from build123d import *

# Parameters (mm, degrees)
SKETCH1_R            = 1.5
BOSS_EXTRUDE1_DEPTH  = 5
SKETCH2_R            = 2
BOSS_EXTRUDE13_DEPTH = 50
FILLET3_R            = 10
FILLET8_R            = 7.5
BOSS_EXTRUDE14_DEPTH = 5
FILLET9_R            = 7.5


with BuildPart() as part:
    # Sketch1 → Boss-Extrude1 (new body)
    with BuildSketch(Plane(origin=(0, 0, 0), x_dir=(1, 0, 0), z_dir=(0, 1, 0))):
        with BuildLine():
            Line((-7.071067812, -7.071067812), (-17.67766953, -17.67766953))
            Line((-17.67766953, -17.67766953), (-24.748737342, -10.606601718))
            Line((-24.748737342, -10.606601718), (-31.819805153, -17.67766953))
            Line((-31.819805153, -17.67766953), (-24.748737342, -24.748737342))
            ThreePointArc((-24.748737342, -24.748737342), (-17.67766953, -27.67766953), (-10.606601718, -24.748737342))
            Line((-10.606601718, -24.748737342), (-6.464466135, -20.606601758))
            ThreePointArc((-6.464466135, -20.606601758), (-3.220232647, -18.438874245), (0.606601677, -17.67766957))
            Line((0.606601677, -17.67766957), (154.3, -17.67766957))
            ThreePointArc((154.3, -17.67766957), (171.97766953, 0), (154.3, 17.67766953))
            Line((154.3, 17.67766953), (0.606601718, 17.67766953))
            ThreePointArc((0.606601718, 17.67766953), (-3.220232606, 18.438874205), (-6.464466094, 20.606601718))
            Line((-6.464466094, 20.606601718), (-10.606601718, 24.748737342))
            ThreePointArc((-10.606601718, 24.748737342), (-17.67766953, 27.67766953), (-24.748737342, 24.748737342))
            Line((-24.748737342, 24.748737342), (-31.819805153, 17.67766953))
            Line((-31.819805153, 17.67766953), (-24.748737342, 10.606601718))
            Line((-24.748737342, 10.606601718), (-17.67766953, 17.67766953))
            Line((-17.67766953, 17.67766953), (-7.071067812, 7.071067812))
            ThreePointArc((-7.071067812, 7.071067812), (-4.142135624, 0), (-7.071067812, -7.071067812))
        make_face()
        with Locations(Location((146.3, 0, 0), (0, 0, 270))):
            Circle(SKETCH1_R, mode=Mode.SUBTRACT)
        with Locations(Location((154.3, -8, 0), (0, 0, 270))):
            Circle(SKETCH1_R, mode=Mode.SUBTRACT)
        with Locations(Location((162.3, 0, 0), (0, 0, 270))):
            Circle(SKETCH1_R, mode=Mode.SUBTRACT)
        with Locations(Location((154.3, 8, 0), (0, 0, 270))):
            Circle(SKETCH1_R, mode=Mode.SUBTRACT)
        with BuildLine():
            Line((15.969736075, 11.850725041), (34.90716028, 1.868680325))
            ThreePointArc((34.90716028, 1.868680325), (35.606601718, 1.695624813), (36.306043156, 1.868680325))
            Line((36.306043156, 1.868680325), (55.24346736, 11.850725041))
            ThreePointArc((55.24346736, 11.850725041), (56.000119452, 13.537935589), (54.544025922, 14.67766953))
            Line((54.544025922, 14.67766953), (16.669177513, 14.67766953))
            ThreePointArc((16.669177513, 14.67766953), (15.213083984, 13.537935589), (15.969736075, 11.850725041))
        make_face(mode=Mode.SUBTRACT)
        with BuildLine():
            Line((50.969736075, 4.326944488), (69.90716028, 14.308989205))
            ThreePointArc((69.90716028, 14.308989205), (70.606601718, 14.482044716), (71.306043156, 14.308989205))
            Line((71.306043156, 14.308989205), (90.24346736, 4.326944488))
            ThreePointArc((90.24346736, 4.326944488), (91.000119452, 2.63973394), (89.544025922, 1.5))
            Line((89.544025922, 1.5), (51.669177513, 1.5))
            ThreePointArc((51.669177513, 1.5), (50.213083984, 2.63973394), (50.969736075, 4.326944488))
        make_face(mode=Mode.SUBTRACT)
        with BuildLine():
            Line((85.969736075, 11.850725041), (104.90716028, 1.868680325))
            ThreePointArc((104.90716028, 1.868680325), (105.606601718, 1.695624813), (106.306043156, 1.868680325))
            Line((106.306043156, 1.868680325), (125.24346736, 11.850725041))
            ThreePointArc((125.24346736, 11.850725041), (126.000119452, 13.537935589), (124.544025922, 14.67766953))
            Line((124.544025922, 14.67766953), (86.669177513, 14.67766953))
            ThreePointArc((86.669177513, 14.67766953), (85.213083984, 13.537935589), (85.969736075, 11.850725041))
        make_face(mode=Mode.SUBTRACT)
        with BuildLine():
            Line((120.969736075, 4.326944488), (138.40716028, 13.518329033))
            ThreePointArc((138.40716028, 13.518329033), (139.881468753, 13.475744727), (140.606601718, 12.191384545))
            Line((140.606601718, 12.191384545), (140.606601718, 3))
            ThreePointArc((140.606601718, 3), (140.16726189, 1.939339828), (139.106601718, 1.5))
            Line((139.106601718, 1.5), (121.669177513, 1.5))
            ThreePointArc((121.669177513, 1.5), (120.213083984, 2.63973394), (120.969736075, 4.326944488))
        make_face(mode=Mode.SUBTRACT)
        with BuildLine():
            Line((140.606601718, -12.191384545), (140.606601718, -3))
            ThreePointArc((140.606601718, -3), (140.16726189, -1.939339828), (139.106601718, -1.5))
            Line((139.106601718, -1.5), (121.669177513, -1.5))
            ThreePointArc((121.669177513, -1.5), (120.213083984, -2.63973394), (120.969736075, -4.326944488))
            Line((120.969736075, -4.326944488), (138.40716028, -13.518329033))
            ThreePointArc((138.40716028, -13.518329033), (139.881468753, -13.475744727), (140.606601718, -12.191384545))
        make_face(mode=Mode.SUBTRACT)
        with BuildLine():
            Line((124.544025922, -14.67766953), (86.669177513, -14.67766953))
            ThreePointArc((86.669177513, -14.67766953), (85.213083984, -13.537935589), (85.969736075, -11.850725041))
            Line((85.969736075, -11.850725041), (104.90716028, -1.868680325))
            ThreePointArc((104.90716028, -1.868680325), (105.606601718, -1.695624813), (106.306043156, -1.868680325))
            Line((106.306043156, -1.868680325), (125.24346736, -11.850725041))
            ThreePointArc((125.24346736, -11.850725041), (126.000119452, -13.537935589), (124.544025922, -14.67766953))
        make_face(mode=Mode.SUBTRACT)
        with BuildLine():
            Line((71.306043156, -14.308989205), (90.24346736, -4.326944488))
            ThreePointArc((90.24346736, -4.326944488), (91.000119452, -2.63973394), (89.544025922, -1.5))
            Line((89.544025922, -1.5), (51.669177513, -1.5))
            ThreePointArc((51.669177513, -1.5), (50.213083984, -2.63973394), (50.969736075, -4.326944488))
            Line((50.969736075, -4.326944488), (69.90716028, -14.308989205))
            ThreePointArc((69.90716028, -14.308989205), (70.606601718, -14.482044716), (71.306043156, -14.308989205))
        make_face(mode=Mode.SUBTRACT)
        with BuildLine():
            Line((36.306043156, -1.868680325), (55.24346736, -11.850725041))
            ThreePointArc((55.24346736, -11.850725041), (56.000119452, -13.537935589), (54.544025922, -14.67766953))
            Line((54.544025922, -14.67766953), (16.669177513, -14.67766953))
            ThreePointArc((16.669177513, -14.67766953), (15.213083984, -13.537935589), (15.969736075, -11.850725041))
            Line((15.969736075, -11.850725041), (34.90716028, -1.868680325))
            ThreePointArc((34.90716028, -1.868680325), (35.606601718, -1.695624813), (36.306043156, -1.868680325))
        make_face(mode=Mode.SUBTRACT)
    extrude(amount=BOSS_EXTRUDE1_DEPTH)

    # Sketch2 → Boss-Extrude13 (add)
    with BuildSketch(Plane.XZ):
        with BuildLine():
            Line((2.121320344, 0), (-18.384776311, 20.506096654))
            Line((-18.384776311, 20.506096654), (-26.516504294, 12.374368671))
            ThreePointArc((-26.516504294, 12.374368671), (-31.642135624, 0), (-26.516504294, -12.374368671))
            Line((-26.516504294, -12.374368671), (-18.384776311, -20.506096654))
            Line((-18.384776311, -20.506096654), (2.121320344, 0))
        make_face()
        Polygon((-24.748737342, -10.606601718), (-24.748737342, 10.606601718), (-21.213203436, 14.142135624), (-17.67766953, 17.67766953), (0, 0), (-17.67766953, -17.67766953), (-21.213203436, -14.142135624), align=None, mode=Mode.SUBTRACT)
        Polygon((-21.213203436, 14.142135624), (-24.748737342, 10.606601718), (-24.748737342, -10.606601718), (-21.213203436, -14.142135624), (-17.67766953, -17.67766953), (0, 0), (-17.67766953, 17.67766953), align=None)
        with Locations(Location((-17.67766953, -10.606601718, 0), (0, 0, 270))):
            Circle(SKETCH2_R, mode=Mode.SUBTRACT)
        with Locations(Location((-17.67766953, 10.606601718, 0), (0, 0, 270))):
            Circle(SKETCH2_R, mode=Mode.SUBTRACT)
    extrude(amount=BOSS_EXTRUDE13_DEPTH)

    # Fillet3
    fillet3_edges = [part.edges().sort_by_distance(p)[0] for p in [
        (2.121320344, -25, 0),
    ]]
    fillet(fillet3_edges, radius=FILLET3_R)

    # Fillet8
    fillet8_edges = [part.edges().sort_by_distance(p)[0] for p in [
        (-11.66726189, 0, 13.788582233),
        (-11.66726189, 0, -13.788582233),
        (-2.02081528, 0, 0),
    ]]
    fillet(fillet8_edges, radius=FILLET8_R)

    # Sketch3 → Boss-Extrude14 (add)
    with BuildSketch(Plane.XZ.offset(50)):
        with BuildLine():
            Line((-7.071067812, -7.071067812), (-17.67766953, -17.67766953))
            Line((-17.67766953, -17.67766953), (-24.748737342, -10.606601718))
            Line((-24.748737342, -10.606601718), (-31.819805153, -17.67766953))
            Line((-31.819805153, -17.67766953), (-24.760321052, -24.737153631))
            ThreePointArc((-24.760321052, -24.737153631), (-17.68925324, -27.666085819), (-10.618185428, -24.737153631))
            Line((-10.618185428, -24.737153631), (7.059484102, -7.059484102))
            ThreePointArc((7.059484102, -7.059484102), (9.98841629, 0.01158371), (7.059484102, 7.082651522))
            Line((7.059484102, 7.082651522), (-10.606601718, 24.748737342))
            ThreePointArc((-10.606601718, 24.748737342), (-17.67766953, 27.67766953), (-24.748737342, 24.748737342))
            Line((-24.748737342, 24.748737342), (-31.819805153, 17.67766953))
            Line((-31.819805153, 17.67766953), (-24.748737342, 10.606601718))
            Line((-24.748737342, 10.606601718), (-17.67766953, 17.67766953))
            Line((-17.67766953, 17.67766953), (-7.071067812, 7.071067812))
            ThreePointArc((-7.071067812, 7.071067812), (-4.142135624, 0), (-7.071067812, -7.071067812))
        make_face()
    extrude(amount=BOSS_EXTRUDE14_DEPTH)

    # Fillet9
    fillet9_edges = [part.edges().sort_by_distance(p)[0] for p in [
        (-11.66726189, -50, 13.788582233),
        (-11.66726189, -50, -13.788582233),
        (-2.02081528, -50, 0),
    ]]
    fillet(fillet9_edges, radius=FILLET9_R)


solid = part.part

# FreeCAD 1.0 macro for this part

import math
import FreeCAD as App
import Part
import Sketcher


def edges_at(feature, points):
    """Names of the edges that pass closest to the given points."""
    edges = feature.Shape.Edges
    near = lambda p: min(range(len(edges)), key=lambda i: edges[i].distToShape(Part.Vertex(*p))[0])
    return sorted({f"Edge{near(p) + 1}" for p in points})

doc = App.newDocument("Part")
body = doc.addObject("PartDesign::Body", "Body")

sketch1 = body.newObject("Sketcher::SketchObject", "Sketch")
sketch1.AttachmentSupport = (doc.getObject("XZ_Plane"), [""])
sketch1.MapMode = "FlatFace"
sketch1.addGeometry(Part.LineSegment(App.Vector(-7.1, 7.1, 0), App.Vector(-17.7, 17.7, 0)), False)
sketch1.addGeometry(Part.LineSegment(App.Vector(-17.7, 17.7, 0), App.Vector(-24.7, 10.6, 0)), False)
sketch1.addGeometry(Part.LineSegment(App.Vector(-24.7, 10.6, 0), App.Vector(-31.8, 17.7, 0)), False)
sketch1.addGeometry(Part.LineSegment(App.Vector(-31.8, 17.7, 0), App.Vector(-24.7, 24.7, 0)), False)
sketch1.addGeometry(Part.ArcOfCircle(Part.Circle(App.Vector(-17.7, 17.7, 0), App.Vector(0, 0, 1), 10), math.radians(45), math.radians(135)), False)
sketch1.addGeometry(Part.LineSegment(App.Vector(-10.6, 24.7, 0), App.Vector(-6.5, 20.6, 0)), False)
sketch1.addGeometry(Part.ArcOfCircle(Part.Circle(App.Vector(0.6, 27.7, 0), App.Vector(0, 0, 1), 10), math.radians(-135), math.radians(-90)), False)
sketch1.addGeometry(Part.LineSegment(App.Vector(0.6, 17.7, 0), App.Vector(154.3, 17.7, 0)), False)
sketch1.addGeometry(Part.ArcOfCircle(Part.Circle(App.Vector(154.3, 0, 0), App.Vector(0, 0, 1), 17.7), math.radians(-90), math.radians(90)), False)
sketch1.addGeometry(Part.LineSegment(App.Vector(154.3, -17.7, 0), App.Vector(0.6, -17.7, 0)), False)
sketch1.addGeometry(Part.ArcOfCircle(Part.Circle(App.Vector(0.6, -27.7, 0), App.Vector(0, 0, 1), 10), math.radians(90), math.radians(135)), False)
sketch1.addGeometry(Part.LineSegment(App.Vector(-6.5, -20.6, 0), App.Vector(-10.6, -24.7, 0)), False)
sketch1.addGeometry(Part.ArcOfCircle(Part.Circle(App.Vector(-17.7, -17.7, 0), App.Vector(0, 0, 1), 10), math.radians(-135), math.radians(-45)), False)
sketch1.addGeometry(Part.LineSegment(App.Vector(-24.7, -24.7, 0), App.Vector(-31.8, -17.7, 0)), False)
sketch1.addGeometry(Part.LineSegment(App.Vector(-31.8, -17.7, 0), App.Vector(-24.7, -10.6, 0)), False)
sketch1.addGeometry(Part.LineSegment(App.Vector(-24.7, -10.6, 0), App.Vector(-17.7, -17.7, 0)), False)
sketch1.addGeometry(Part.LineSegment(App.Vector(-17.7, -17.7, 0), App.Vector(-7.1, -7.1, 0)), False)
sketch1.addGeometry(Part.ArcOfCircle(Part.Circle(App.Vector(-14.1, 0, 0), App.Vector(0, 0, 1), 10), math.radians(-45), math.radians(45)), False)
sketch1.addGeometry(Part.ArcOfCircle(Part.Circle(App.Vector(35.6, 3.2, 0), App.Vector(0, 0, 1), 1.5), math.radians(-118), math.radians(-62)), False)
sketch1.addGeometry(Part.LineSegment(App.Vector(36.3, 1.9, 0), App.Vector(55.2, 11.9, 0)), False)
sketch1.addGeometry(Part.ArcOfCircle(Part.Circle(App.Vector(54.5, 13.2, 0), App.Vector(0, 0, 1), 1.5), math.radians(-62), math.radians(90)), False)
sketch1.addGeometry(Part.LineSegment(App.Vector(54.5, 14.7, 0), App.Vector(16.7, 14.7, 0)), False)
sketch1.addGeometry(Part.ArcOfCircle(Part.Circle(App.Vector(16.7, 13.2, 0), App.Vector(0, 0, 1), 1.5), math.radians(90), math.radians(242)), False)
sketch1.addGeometry(Part.LineSegment(App.Vector(16, 11.9, 0), App.Vector(34.9, 1.9, 0)), False)
sketch1.addGeometry(Part.LineSegment(App.Vector(90.2, 4.3, 0), App.Vector(71.3, 14.3, 0)), False)
sketch1.addGeometry(Part.ArcOfCircle(Part.Circle(App.Vector(70.6, 13, 0), App.Vector(0, 0, 1), 1.5), math.radians(62), math.radians(118)), False)
sketch1.addGeometry(Part.LineSegment(App.Vector(69.9, 14.3, 0), App.Vector(51, 4.3, 0)), False)
sketch1.addGeometry(Part.ArcOfCircle(Part.Circle(App.Vector(51.7, 3, 0), App.Vector(0, 0, 1), 1.5), math.radians(118), math.radians(270)), False)
sketch1.addGeometry(Part.LineSegment(App.Vector(51.7, 1.5, 0), App.Vector(89.5, 1.5, 0)), False)
sketch1.addGeometry(Part.ArcOfCircle(Part.Circle(App.Vector(89.5, 3, 0), App.Vector(0, 0, 1), 1.5), math.radians(-90), math.radians(62)), False)
sketch1.addGeometry(Part.ArcOfCircle(Part.Circle(App.Vector(124.5, 13.2, 0), App.Vector(0, 0, 1), 1.5), math.radians(-62), math.radians(90)), False)
sketch1.addGeometry(Part.LineSegment(App.Vector(124.5, 14.7, 0), App.Vector(86.7, 14.7, 0)), False)
sketch1.addGeometry(Part.ArcOfCircle(Part.Circle(App.Vector(86.7, 13.2, 0), App.Vector(0, 0, 1), 1.5), math.radians(90), math.radians(242)), False)
sketch1.addGeometry(Part.LineSegment(App.Vector(86, 11.9, 0), App.Vector(104.9, 1.9, 0)), False)
sketch1.addGeometry(Part.ArcOfCircle(Part.Circle(App.Vector(105.6, 3.2, 0), App.Vector(0, 0, 1), 1.5), math.radians(-118), math.radians(-62)), False)
sketch1.addGeometry(Part.LineSegment(App.Vector(106.3, 1.9, 0), App.Vector(125.2, 11.9, 0)), False)
sketch1.addGeometry(Part.LineSegment(App.Vector(140.6, 3, 0), App.Vector(140.6, 12.2, 0)), False)
sketch1.addGeometry(Part.ArcOfCircle(Part.Circle(App.Vector(139.1, 12.2, 0), App.Vector(0, 0, 1), 1.5), math.radians(0), math.radians(118)), False)
sketch1.addGeometry(Part.LineSegment(App.Vector(138.4, 13.5, 0), App.Vector(121, 4.3, 0)), False)
sketch1.addGeometry(Part.ArcOfCircle(Part.Circle(App.Vector(121.7, 3, 0), App.Vector(0, 0, 1), 1.5), math.radians(118), math.radians(270)), False)
sketch1.addGeometry(Part.LineSegment(App.Vector(121.7, 1.5, 0), App.Vector(139.1, 1.5, 0)), False)
sketch1.addGeometry(Part.ArcOfCircle(Part.Circle(App.Vector(139.1, 3, 0), App.Vector(0, 0, 1), 1.5), math.radians(-90), math.radians(0)), False)
sketch1.addGeometry(Part.Circle(App.Vector(154.3, 8, 0), App.Vector(0, 0, 1), 1.5), False)
sketch1.addGeometry(Part.Circle(App.Vector(146.3, 0, 0), App.Vector(0, 0, 1), 1.5), False)
sketch1.addGeometry(Part.Circle(App.Vector(162.3, 0, 0), App.Vector(0, 0, 1), 1.5), False)
sketch1.addGeometry(Part.LineSegment(App.Vector(34.9, -1.9, 0), App.Vector(16, -11.9, 0)), False)
sketch1.addGeometry(Part.ArcOfCircle(Part.Circle(App.Vector(16.7, -13.2, 0), App.Vector(0, 0, 1), 1.5), math.radians(118), math.radians(270)), False)
sketch1.addGeometry(Part.LineSegment(App.Vector(16.7, -14.7, 0), App.Vector(54.5, -14.7, 0)), False)
sketch1.addGeometry(Part.ArcOfCircle(Part.Circle(App.Vector(54.5, -13.2, 0), App.Vector(0, 0, 1), 1.5), math.radians(-90), math.radians(62)), False)
sketch1.addGeometry(Part.LineSegment(App.Vector(55.2, -11.9, 0), App.Vector(36.3, -1.9, 0)), False)
sketch1.addGeometry(Part.ArcOfCircle(Part.Circle(App.Vector(35.6, -3.2, 0), App.Vector(0, 0, 1), 1.5), math.radians(62), math.radians(118)), False)
sketch1.addGeometry(Part.ArcOfCircle(Part.Circle(App.Vector(51.7, -3, 0), App.Vector(0, 0, 1), 1.5), math.radians(90), math.radians(242)), False)
sketch1.addGeometry(Part.LineSegment(App.Vector(51, -4.3, 0), App.Vector(69.9, -14.3, 0)), False)
sketch1.addGeometry(Part.ArcOfCircle(Part.Circle(App.Vector(70.6, -13, 0), App.Vector(0, 0, 1), 1.5), math.radians(-118), math.radians(-62)), False)
sketch1.addGeometry(Part.LineSegment(App.Vector(71.3, -14.3, 0), App.Vector(90.2, -4.3, 0)), False)
sketch1.addGeometry(Part.ArcOfCircle(Part.Circle(App.Vector(89.5, -3, 0), App.Vector(0, 0, 1), 1.5), math.radians(-62), math.radians(90)), False)
sketch1.addGeometry(Part.LineSegment(App.Vector(89.5, -1.5, 0), App.Vector(51.7, -1.5, 0)), False)
sketch1.addGeometry(Part.LineSegment(App.Vector(104.9, -1.9, 0), App.Vector(86, -11.9, 0)), False)
sketch1.addGeometry(Part.ArcOfCircle(Part.Circle(App.Vector(86.7, -13.2, 0), App.Vector(0, 0, 1), 1.5), math.radians(118), math.radians(270)), False)
sketch1.addGeometry(Part.LineSegment(App.Vector(86.7, -14.7, 0), App.Vector(124.5, -14.7, 0)), False)
sketch1.addGeometry(Part.ArcOfCircle(Part.Circle(App.Vector(124.5, -13.2, 0), App.Vector(0, 0, 1), 1.5), math.radians(-90), math.radians(62)), False)
sketch1.addGeometry(Part.LineSegment(App.Vector(125.2, -11.9, 0), App.Vector(106.3, -1.9, 0)), False)
sketch1.addGeometry(Part.ArcOfCircle(Part.Circle(App.Vector(105.6, -3.2, 0), App.Vector(0, 0, 1), 1.5), math.radians(62), math.radians(118)), False)
sketch1.addGeometry(Part.ArcOfCircle(Part.Circle(App.Vector(121.7, -3, 0), App.Vector(0, 0, 1), 1.5), math.radians(90), math.radians(242)), False)
sketch1.addGeometry(Part.LineSegment(App.Vector(121, -4.3, 0), App.Vector(138.4, -13.5, 0)), False)
sketch1.addGeometry(Part.ArcOfCircle(Part.Circle(App.Vector(139.1, -12.2, 0), App.Vector(0, 0, 1), 1.5), math.radians(-118), math.radians(0)), False)
sketch1.addGeometry(Part.LineSegment(App.Vector(140.6, -12.2, 0), App.Vector(140.6, -3, 0)), False)
sketch1.addGeometry(Part.ArcOfCircle(Part.Circle(App.Vector(139.1, -3, 0), App.Vector(0, 0, 1), 1.5), math.radians(0), math.radians(90)), False)
sketch1.addGeometry(Part.LineSegment(App.Vector(139.1, -1.5, 0), App.Vector(121.7, -1.5, 0)), False)
sketch1.addGeometry(Part.Circle(App.Vector(154.3, -8, 0), App.Vector(0, 0, 1), 1.5), False)
sketch1.addConstraint(Sketcher.Constraint("Coincident", 0, 2, 1, 1))
sketch1.addConstraint(Sketcher.Constraint("Coincident", 1, 2, 2, 1))
sketch1.addConstraint(Sketcher.Constraint("Coincident", 2, 2, 3, 1))
sketch1.addConstraint(Sketcher.Constraint("Tangent", 3, 2, 4, 2))
sketch1.addConstraint(Sketcher.Constraint("Tangent", 4, 1, 5, 1))
sketch1.addConstraint(Sketcher.Constraint("Tangent", 5, 2, 6, 1))
sketch1.addConstraint(Sketcher.Constraint("Tangent", 6, 2, 7, 1))
sketch1.addConstraint(Sketcher.Constraint("Tangent", 7, 2, 8, 2))
sketch1.addConstraint(Sketcher.Constraint("Tangent", 8, 1, 9, 1))
sketch1.addConstraint(Sketcher.Constraint("Tangent", 9, 2, 10, 1))
sketch1.addConstraint(Sketcher.Constraint("Tangent", 10, 2, 11, 1))
sketch1.addConstraint(Sketcher.Constraint("Tangent", 11, 2, 12, 2))
sketch1.addConstraint(Sketcher.Constraint("Tangent", 12, 1, 13, 1))
sketch1.addConstraint(Sketcher.Constraint("Coincident", 13, 2, 14, 1))
sketch1.addConstraint(Sketcher.Constraint("Coincident", 14, 2, 15, 1))
sketch1.addConstraint(Sketcher.Constraint("Coincident", 15, 2, 16, 1))
sketch1.addConstraint(Sketcher.Constraint("Tangent", 16, 2, 17, 1))
sketch1.addConstraint(Sketcher.Constraint("Tangent", 17, 2, 0, 1))
sketch1.addConstraint(Sketcher.Constraint("Tangent", 18, 2, 19, 1))
sketch1.addConstraint(Sketcher.Constraint("Tangent", 19, 2, 20, 1))
sketch1.addConstraint(Sketcher.Constraint("Tangent", 20, 2, 21, 1))
sketch1.addConstraint(Sketcher.Constraint("Tangent", 21, 2, 22, 1))
sketch1.addConstraint(Sketcher.Constraint("Tangent", 22, 2, 23, 1))
sketch1.addConstraint(Sketcher.Constraint("Tangent", 23, 2, 18, 1))
sketch1.addConstraint(Sketcher.Constraint("Tangent", 24, 2, 25, 1))
sketch1.addConstraint(Sketcher.Constraint("Tangent", 25, 2, 26, 1))
sketch1.addConstraint(Sketcher.Constraint("Tangent", 26, 2, 27, 1))
sketch1.addConstraint(Sketcher.Constraint("Tangent", 27, 2, 28, 1))
sketch1.addConstraint(Sketcher.Constraint("Tangent", 28, 2, 29, 1))
sketch1.addConstraint(Sketcher.Constraint("Tangent", 29, 2, 24, 1))
sketch1.addConstraint(Sketcher.Constraint("Tangent", 30, 2, 31, 1))
sketch1.addConstraint(Sketcher.Constraint("Tangent", 31, 2, 32, 1))
sketch1.addConstraint(Sketcher.Constraint("Tangent", 32, 2, 33, 1))
sketch1.addConstraint(Sketcher.Constraint("Tangent", 33, 2, 34, 1))
sketch1.addConstraint(Sketcher.Constraint("Tangent", 34, 2, 35, 1))
sketch1.addConstraint(Sketcher.Constraint("Tangent", 35, 2, 30, 1))
sketch1.addConstraint(Sketcher.Constraint("Tangent", 36, 2, 37, 1))
sketch1.addConstraint(Sketcher.Constraint("Tangent", 37, 2, 38, 1))
sketch1.addConstraint(Sketcher.Constraint("Tangent", 38, 2, 39, 1))
sketch1.addConstraint(Sketcher.Constraint("Tangent", 39, 2, 40, 1))
sketch1.addConstraint(Sketcher.Constraint("Tangent", 40, 2, 41, 1))
sketch1.addConstraint(Sketcher.Constraint("Tangent", 41, 2, 36, 1))
sketch1.addConstraint(Sketcher.Constraint("Tangent", 45, 2, 46, 1))
sketch1.addConstraint(Sketcher.Constraint("Tangent", 46, 2, 47, 1))
sketch1.addConstraint(Sketcher.Constraint("Tangent", 47, 2, 48, 1))
sketch1.addConstraint(Sketcher.Constraint("Tangent", 48, 2, 49, 1))
sketch1.addConstraint(Sketcher.Constraint("Tangent", 49, 2, 50, 1))
sketch1.addConstraint(Sketcher.Constraint("Tangent", 50, 2, 45, 1))
sketch1.addConstraint(Sketcher.Constraint("Tangent", 51, 2, 52, 1))
sketch1.addConstraint(Sketcher.Constraint("Tangent", 52, 2, 53, 1))
sketch1.addConstraint(Sketcher.Constraint("Tangent", 53, 2, 54, 1))
sketch1.addConstraint(Sketcher.Constraint("Tangent", 54, 2, 55, 1))
sketch1.addConstraint(Sketcher.Constraint("Tangent", 55, 2, 56, 1))
sketch1.addConstraint(Sketcher.Constraint("Tangent", 56, 2, 51, 1))
sketch1.addConstraint(Sketcher.Constraint("Tangent", 57, 2, 58, 1))
sketch1.addConstraint(Sketcher.Constraint("Tangent", 58, 2, 59, 1))
sketch1.addConstraint(Sketcher.Constraint("Tangent", 59, 2, 60, 1))
sketch1.addConstraint(Sketcher.Constraint("Tangent", 60, 2, 61, 1))
sketch1.addConstraint(Sketcher.Constraint("Tangent", 61, 2, 62, 1))
sketch1.addConstraint(Sketcher.Constraint("Tangent", 62, 2, 57, 1))
sketch1.addConstraint(Sketcher.Constraint("Tangent", 63, 2, 64, 1))
sketch1.addConstraint(Sketcher.Constraint("Tangent", 64, 2, 65, 1))
sketch1.addConstraint(Sketcher.Constraint("Tangent", 65, 2, 66, 1))
sketch1.addConstraint(Sketcher.Constraint("Tangent", 66, 2, 67, 1))
sketch1.addConstraint(Sketcher.Constraint("Tangent", 67, 2, 68, 1))
sketch1.addConstraint(Sketcher.Constraint("Tangent", 68, 2, 63, 1))
sketch1.addConstraint(Sketcher.Constraint("Horizontal", 7))
sketch1.addConstraint(Sketcher.Constraint("Horizontal", 9))
sketch1.addConstraint(Sketcher.Constraint("Horizontal", 21))
sketch1.addConstraint(Sketcher.Constraint("Horizontal", 28))
sketch1.addConstraint(Sketcher.Constraint("Horizontal", 31))
sketch1.addConstraint(Sketcher.Constraint("Vertical", 36))
sketch1.addConstraint(Sketcher.Constraint("Horizontal", 40))
sketch1.addConstraint(Sketcher.Constraint("Horizontal", 47))
sketch1.addConstraint(Sketcher.Constraint("Horizontal", 56))
sketch1.addConstraint(Sketcher.Constraint("Horizontal", 59))
sketch1.addConstraint(Sketcher.Constraint("Vertical", 66))
sketch1.addConstraint(Sketcher.Constraint("Horizontal", 68))
sketch1.addConstraint(Sketcher.Constraint("Coincident", 0, 2, 4, 3))
sketch1.addConstraint(Sketcher.Constraint("Coincident", 15, 2, 12, 3))
sketch1.addConstraint(Sketcher.Constraint("Equal", 4, 6))
sketch1.addConstraint(Sketcher.Constraint("Equal", 6, 10))
sketch1.addConstraint(Sketcher.Constraint("Equal", 10, 12))
sketch1.addConstraint(Sketcher.Constraint("Equal", 12, 17))
sketch1.addConstraint(Sketcher.Constraint("Equal", 18, 20))
sketch1.addConstraint(Sketcher.Constraint("Equal", 20, 22))
sketch1.addConstraint(Sketcher.Constraint("Equal", 22, 25))
sketch1.addConstraint(Sketcher.Constraint("Equal", 25, 27))
sketch1.addConstraint(Sketcher.Constraint("Equal", 27, 29))
sketch1.addConstraint(Sketcher.Constraint("Equal", 29, 30))
sketch1.addConstraint(Sketcher.Constraint("Equal", 30, 32))
sketch1.addConstraint(Sketcher.Constraint("Equal", 32, 34))
sketch1.addConstraint(Sketcher.Constraint("Equal", 34, 37))
sketch1.addConstraint(Sketcher.Constraint("Equal", 37, 39))
sketch1.addConstraint(Sketcher.Constraint("Equal", 39, 41))
sketch1.addConstraint(Sketcher.Constraint("Equal", 41, 42))
sketch1.addConstraint(Sketcher.Constraint("Equal", 42, 43))
sketch1.addConstraint(Sketcher.Constraint("Equal", 43, 44))
sketch1.addConstraint(Sketcher.Constraint("Equal", 44, 46))
sketch1.addConstraint(Sketcher.Constraint("Equal", 46, 48))
sketch1.addConstraint(Sketcher.Constraint("Equal", 48, 50))
sketch1.addConstraint(Sketcher.Constraint("Equal", 50, 51))
sketch1.addConstraint(Sketcher.Constraint("Equal", 51, 53))
sketch1.addConstraint(Sketcher.Constraint("Equal", 53, 55))
sketch1.addConstraint(Sketcher.Constraint("Equal", 55, 58))
sketch1.addConstraint(Sketcher.Constraint("Equal", 58, 60))
sketch1.addConstraint(Sketcher.Constraint("Equal", 60, 62))
sketch1.addConstraint(Sketcher.Constraint("Equal", 62, 63))
sketch1.addConstraint(Sketcher.Constraint("Equal", 63, 65))
sketch1.addConstraint(Sketcher.Constraint("Equal", 65, 67))
sketch1.addConstraint(Sketcher.Constraint("Equal", 67, 69))
sketch1.addConstraint(Sketcher.Constraint("Symmetric", 6, 3, 10, 3, -1))
sketch1.addConstraint(Sketcher.Constraint("Symmetric", 4, 3, 12, 3, -1))
sketch1.addConstraint(Sketcher.Constraint("Symmetric", 22, 3, 46, 3, -1))
sketch1.addConstraint(Sketcher.Constraint("Symmetric", 18, 3, 50, 3, -1))
sketch1.addConstraint(Sketcher.Constraint("Symmetric", 27, 3, 51, 3, -1))
sketch1.addConstraint(Sketcher.Constraint("Symmetric", 25, 3, 53, 3, -1))
sketch1.addConstraint(Sketcher.Constraint("Symmetric", 32, 3, 58, 3, -1))
sketch1.addConstraint(Sketcher.Constraint("Symmetric", 34, 3, 62, 3, -1))
sketch1.addConstraint(Sketcher.Constraint("Symmetric", 39, 3, 63, 3, -1))
sketch1.addConstraint(Sketcher.Constraint("Symmetric", 37, 3, 65, 3, -1))
sketch1.addConstraint(Sketcher.Constraint("Symmetric", 42, 3, 69, 3, -1))
sketch1.addConstraint(Sketcher.Constraint("Symmetric", 2, 2, 13, 2, -1))
sketch1.addConstraint(Sketcher.Constraint("Symmetric", 1, 2, 14, 2, -1))
sketch1.addConstraint(Sketcher.Constraint("PointOnObject", 17, 3, -1))
sketch1.addConstraint(Sketcher.Constraint("PointOnObject", 43, 3, -1))
sketch1.addConstraint(Sketcher.Constraint("PointOnObject", 44, 3, -1))
sketch1.addConstraint(Sketcher.Constraint("Perpendicular", 0, 1))
sketch1.addConstraint(Sketcher.Constraint("Perpendicular", 1, 2))
sketch1.addConstraint(Sketcher.Constraint("Perpendicular", 2, 3))
sketch1.addConstraint(Sketcher.Constraint("Perpendicular", 3, 5))
sketch1.addConstraint(Sketcher.Constraint("Perpendicular", 5, 11))
sketch1.addConstraint(Sketcher.Constraint("Parallel", 23, 24))
sketch1.addConstraint(Sketcher.Constraint("Parallel", 19, 26))
sketch1.addConstraint(Sketcher.Constraint("Parallel", 24, 33))
sketch1.addConstraint(Sketcher.Constraint("Parallel", 26, 35))
sketch1.addConstraint(Sketcher.Constraint("Parallel", 35, 38))
sketch1.addConstraint(Sketcher.Constraint("Parallel", 38, 45))
sketch1.addConstraint(Sketcher.Constraint("Parallel", 33, 49))
sketch1.addConstraint(Sketcher.Constraint("Parallel", 45, 54))
sketch1.addConstraint(Sketcher.Constraint("Parallel", 52, 61))
sketch1.addConstraint(Sketcher.Constraint("Horizontal", 22, 3, 30, 3))
sketch1.addConstraint(Sketcher.Constraint("Horizontal", 18, 3, 34, 3))
sketch1.addConstraint(Sketcher.Constraint("Horizontal", 29, 3, 39, 3))
sketch1.addConstraint(Sketcher.Constraint("Horizontal", 0, 2, 2, 2))
sketch1.addConstraint(Sketcher.Constraint("Horizontal", 2, 2, 6, 2))
sketch1.addConstraint(Sketcher.Constraint("Vertical", 8, 3, 42, 3))
sketch1.addConstraint(Sketcher.Constraint("Equal", 21, 28))
sketch1.addConstraint(Sketcher.Constraint("Diameter", 42, 3.0))
sketch1.addConstraint(Sketcher.Constraint("Radius", 4, 10.0))
sketch1.addConstraint(Sketcher.Constraint("Distance", 0, 15.0))
sketch1.addConstraint(Sketcher.Constraint("DistanceY", -1, 1, 27, 3, 3.0))
sketch1.addConstraint(Sketcher.Constraint("DistanceY", -1, 1, 42, 3, 8.0))
sketch1.addConstraint(Sketcher.Constraint("DistanceX", -1, 1, 8, 3, 154.3))
sketch1.addConstraint(Sketcher.Constraint("DistanceX", -1, 1, 43, 3, 146.3))
sketch1.addConstraint(Sketcher.Constraint("DistanceX", -1, 1, 44, 3, 162.3))
sketch1.addConstraint(Sketcher.Constraint("DistanceX", 7, 1, 7, 2, 153.693398))
sketch1.addConstraint(Sketcher.Constraint("DistanceX", 21, 2, 21, 1, 37.874848))
sketch1.addConstraint(Sketcher.Constraint("DistanceX", -1, 1, 18, 3, 35.606602))
sketch1.addConstraint(Sketcher.Constraint("DistanceX", -1, 1, 25, 3, 70.606602))
sketch1.addConstraint(Sketcher.Constraint("DistanceX", -1, 1, 34, 3, 105.606602))
sketch1.addConstraint(Sketcher.Constraint("DistanceX", -1, 1, 37, 3, 139.106602))
sketch1.addConstraint(Sketcher.Constraint("DistanceX", 40, 1, 40, 2, 17.437424))
sketch1.addConstraint(Sketcher.Constraint("DistanceY", 36, 1, 36, 2, 9.191385))
sketch1.addConstraint(Sketcher.Constraint("DistanceY", -1, 1, 20, 3, 13.17767))
pad1 = body.newObject("PartDesign::Pad", "Pad")
pad1.Profile = sketch1
pad1.Length = 5
pad1.Reversed = True

sketch2 = body.newObject("Sketcher::SketchObject", "Sketch001")
sketch2.AttachmentSupport = (doc.getObject("XZ_Plane"), [""])
sketch2.MapMode = "FlatFace"
sketch2.addGeometry(Part.LineSegment(App.Vector(2.1, 0, 0), App.Vector(-18.4, 20.5, 0)), False)
sketch2.addGeometry(Part.LineSegment(App.Vector(-18.4, 20.5, 0), App.Vector(-26.5, 12.4, 0)), False)
sketch2.addGeometry(Part.ArcOfCircle(Part.Circle(App.Vector(-14.1, 0, 0), App.Vector(0, 0, 1), 17.5), math.radians(135), math.radians(225)), False)
sketch2.addGeometry(Part.LineSegment(App.Vector(-26.5, -12.4, 0), App.Vector(-18.4, -20.5, 0)), False)
sketch2.addGeometry(Part.LineSegment(App.Vector(-18.4, -20.5, 0), App.Vector(2.1, 0, 0)), False)
sketch2.addGeometry(Part.Circle(App.Vector(-17.7, -10.6, 0), App.Vector(0, 0, 1), 2), False)
sketch2.addGeometry(Part.Circle(App.Vector(-17.7, 10.6, 0), App.Vector(0, 0, 1), 2), False)
sketch2.addConstraint(Sketcher.Constraint("Coincident", 0, 2, 1, 1))
sketch2.addConstraint(Sketcher.Constraint("Tangent", 1, 2, 2, 1))
sketch2.addConstraint(Sketcher.Constraint("Tangent", 2, 2, 3, 1))
sketch2.addConstraint(Sketcher.Constraint("Coincident", 3, 2, 4, 1))
sketch2.addConstraint(Sketcher.Constraint("Coincident", 4, 2, 0, 1))
sketch2.addConstraint(Sketcher.Constraint("Equal", 5, 6))
sketch2.addConstraint(Sketcher.Constraint("Symmetric", 5, 3, 6, 3, -1))
sketch2.addConstraint(Sketcher.Constraint("Symmetric", 1, 2, 2, 2, -1))
sketch2.addConstraint(Sketcher.Constraint("PointOnObject", 4, 2, -1))
sketch2.addConstraint(Sketcher.Constraint("Perpendicular", 0, 1))
sketch2.addConstraint(Sketcher.Constraint("Perpendicular", 1, 3))
sketch2.addConstraint(Sketcher.Constraint("Perpendicular", 3, 4))
sketch2.addConstraint(Sketcher.Constraint("Diameter", 5, 4.0))
sketch2.addConstraint(Sketcher.Constraint("Radius", 2, 17.5))
sketch2.addConstraint(Sketcher.Constraint("Distance", 0, 29.0))
sketch2.addConstraint(Sketcher.Constraint("DistanceY", 5, 3, -1, 1, 10.606602))
sketch2.addConstraint(Sketcher.Constraint("DistanceX", 5, 3, -1, 1, 17.67767))
sketch2.addConstraint(Sketcher.Constraint("DistanceX", -1, 1, 4, 2, 2.12132))
pad2 = body.newObject("PartDesign::Pad", "Pad001")
pad2.Profile = sketch2
pad2.Length = 50
doc.recompute()

fillet = body.newObject("PartDesign::Fillet", "Fillet")
fillet.Base = (pad2, edges_at(pad2, [(2.121, -25, 0)]))
fillet.Radius = 10
doc.recompute()

fillet2 = body.newObject("PartDesign::Fillet", "Fillet001")
fillet2.Base = (fillet, edges_at(fillet, [(-11.667, 0, 13.789), (-11.667, 0, -13.789), (-2.021, 0, 0)]))
fillet2.Radius = 7.5

sketch3 = body.newObject("Sketcher::SketchObject", "Sketch002")
sketch3.AttachmentSupport = (doc.getObject("XZ_Plane"), [""])
sketch3.MapMode = "FlatFace"
sketch3.AttachmentOffset = App.Placement(App.Vector(0, 0, 50), App.Rotation())
sketch3.addGeometry(Part.LineSegment(App.Vector(-7, -7, 0), App.Vector(-18, -18, 0)), False)
sketch3.addGeometry(Part.LineSegment(App.Vector(-18, -18, 0), App.Vector(-25, -11, 0)), False)
sketch3.addGeometry(Part.LineSegment(App.Vector(-25, -11, 0), App.Vector(-32, -18, 0)), False)
sketch3.addGeometry(Part.LineSegment(App.Vector(-32, -18, 0), App.Vector(-25, -25, 0)), False)
sketch3.addGeometry(Part.ArcOfCircle(Part.Circle(App.Vector(-18, -18, 0), App.Vector(0, 0, 1), 10), math.radians(-135), math.radians(-45)), False)
sketch3.addGeometry(Part.LineSegment(App.Vector(-11, -25, 0), App.Vector(7, -7, 0)), False)
sketch3.addGeometry(Part.ArcOfCircle(Part.Circle(App.Vector(0, 0, 0), App.Vector(0, 0, 1), 10), math.radians(-45), math.radians(45)), False)
sketch3.addGeometry(Part.LineSegment(App.Vector(7, 7, 0), App.Vector(-11, 25, 0)), False)
sketch3.addGeometry(Part.ArcOfCircle(Part.Circle(App.Vector(-18, 18, 0), App.Vector(0, 0, 1), 10), math.radians(45), math.radians(135)), False)
sketch3.addGeometry(Part.LineSegment(App.Vector(-25, 25, 0), App.Vector(-32, 18, 0)), False)
sketch3.addGeometry(Part.LineSegment(App.Vector(-32, 18, 0), App.Vector(-25, 11, 0)), False)
sketch3.addGeometry(Part.LineSegment(App.Vector(-25, 11, 0), App.Vector(-18, 18, 0)), False)
sketch3.addGeometry(Part.LineSegment(App.Vector(-18, 18, 0), App.Vector(-7, 7, 0)), False)
sketch3.addGeometry(Part.ArcOfCircle(Part.Circle(App.Vector(-14, 0, 0), App.Vector(0, 0, 1), 10), math.radians(-45), math.radians(45)), False)
sketch3.addConstraint(Sketcher.Constraint("Coincident", 0, 2, 1, 1))
sketch3.addConstraint(Sketcher.Constraint("Coincident", 1, 2, 2, 1))
sketch3.addConstraint(Sketcher.Constraint("Coincident", 2, 2, 3, 1))
sketch3.addConstraint(Sketcher.Constraint("Tangent", 3, 2, 4, 1))
sketch3.addConstraint(Sketcher.Constraint("Tangent", 4, 2, 5, 1))
sketch3.addConstraint(Sketcher.Constraint("Tangent", 5, 2, 6, 1))
sketch3.addConstraint(Sketcher.Constraint("Tangent", 6, 2, 7, 1))
sketch3.addConstraint(Sketcher.Constraint("Tangent", 7, 2, 8, 1))
sketch3.addConstraint(Sketcher.Constraint("Tangent", 8, 2, 9, 1))
sketch3.addConstraint(Sketcher.Constraint("Coincident", 9, 2, 10, 1))
sketch3.addConstraint(Sketcher.Constraint("Coincident", 10, 2, 11, 1))
sketch3.addConstraint(Sketcher.Constraint("Coincident", 11, 2, 12, 1))
sketch3.addConstraint(Sketcher.Constraint("Tangent", 12, 2, 13, 2))
sketch3.addConstraint(Sketcher.Constraint("Tangent", 13, 1, 0, 1))
sketch3.addConstraint(Sketcher.Constraint("Coincident", 11, 2, 8, 3))
sketch3.addConstraint(Sketcher.Constraint("Equal", 4, 6))
sketch3.addConstraint(Sketcher.Constraint("Equal", 6, 8))
sketch3.addConstraint(Sketcher.Constraint("Equal", 8, 13))
sketch3.addConstraint(Sketcher.Constraint("Symmetric", 2, 2, 9, 2, -1))
sketch3.addConstraint(Sketcher.Constraint("Symmetric", 1, 2, 10, 2, -1))
sketch3.addConstraint(Sketcher.Constraint("Symmetric", 0, 2, 11, 2, -1))
sketch3.addConstraint(Sketcher.Constraint("PointOnObject", 13, 3, -1))
sketch3.addConstraint(Sketcher.Constraint("Perpendicular", 0, 1))
sketch3.addConstraint(Sketcher.Constraint("Perpendicular", 1, 2))
sketch3.addConstraint(Sketcher.Constraint("Perpendicular", 2, 3))
sketch3.addConstraint(Sketcher.Constraint("Perpendicular", 3, 5))
sketch3.addConstraint(Sketcher.Constraint("Perpendicular", 5, 7))
sketch3.addConstraint(Sketcher.Constraint("Perpendicular", 7, 9))
sketch3.addConstraint(Sketcher.Constraint("Perpendicular", 9, 10))
sketch3.addConstraint(Sketcher.Constraint("Horizontal", 0, 2, 2, 2))
sketch3.addConstraint(Sketcher.Constraint("Radius", 4, 10.0))
sketch3.addConstraint(Sketcher.Constraint("Distance", 0, 15.0))
sketch3.addConstraint(Sketcher.Constraint("DistanceX", 7, 2, -1, 1, 10.606602))
sketch3.addConstraint(Sketcher.Constraint("Distance", 3, 9.983618))
pad3 = body.newObject("PartDesign::Pad", "Pad002")
pad3.Profile = sketch3
pad3.Length = 5
doc.recompute()

fillet3 = body.newObject("PartDesign::Fillet", "Fillet002")
fillet3.Base = (pad3, edges_at(pad3, [(-11.667, -50, 13.789), (-11.667, -50, -13.789), (-2.021, -50, 0)]))
fillet3.Radius = 7.5

doc.recompute()
